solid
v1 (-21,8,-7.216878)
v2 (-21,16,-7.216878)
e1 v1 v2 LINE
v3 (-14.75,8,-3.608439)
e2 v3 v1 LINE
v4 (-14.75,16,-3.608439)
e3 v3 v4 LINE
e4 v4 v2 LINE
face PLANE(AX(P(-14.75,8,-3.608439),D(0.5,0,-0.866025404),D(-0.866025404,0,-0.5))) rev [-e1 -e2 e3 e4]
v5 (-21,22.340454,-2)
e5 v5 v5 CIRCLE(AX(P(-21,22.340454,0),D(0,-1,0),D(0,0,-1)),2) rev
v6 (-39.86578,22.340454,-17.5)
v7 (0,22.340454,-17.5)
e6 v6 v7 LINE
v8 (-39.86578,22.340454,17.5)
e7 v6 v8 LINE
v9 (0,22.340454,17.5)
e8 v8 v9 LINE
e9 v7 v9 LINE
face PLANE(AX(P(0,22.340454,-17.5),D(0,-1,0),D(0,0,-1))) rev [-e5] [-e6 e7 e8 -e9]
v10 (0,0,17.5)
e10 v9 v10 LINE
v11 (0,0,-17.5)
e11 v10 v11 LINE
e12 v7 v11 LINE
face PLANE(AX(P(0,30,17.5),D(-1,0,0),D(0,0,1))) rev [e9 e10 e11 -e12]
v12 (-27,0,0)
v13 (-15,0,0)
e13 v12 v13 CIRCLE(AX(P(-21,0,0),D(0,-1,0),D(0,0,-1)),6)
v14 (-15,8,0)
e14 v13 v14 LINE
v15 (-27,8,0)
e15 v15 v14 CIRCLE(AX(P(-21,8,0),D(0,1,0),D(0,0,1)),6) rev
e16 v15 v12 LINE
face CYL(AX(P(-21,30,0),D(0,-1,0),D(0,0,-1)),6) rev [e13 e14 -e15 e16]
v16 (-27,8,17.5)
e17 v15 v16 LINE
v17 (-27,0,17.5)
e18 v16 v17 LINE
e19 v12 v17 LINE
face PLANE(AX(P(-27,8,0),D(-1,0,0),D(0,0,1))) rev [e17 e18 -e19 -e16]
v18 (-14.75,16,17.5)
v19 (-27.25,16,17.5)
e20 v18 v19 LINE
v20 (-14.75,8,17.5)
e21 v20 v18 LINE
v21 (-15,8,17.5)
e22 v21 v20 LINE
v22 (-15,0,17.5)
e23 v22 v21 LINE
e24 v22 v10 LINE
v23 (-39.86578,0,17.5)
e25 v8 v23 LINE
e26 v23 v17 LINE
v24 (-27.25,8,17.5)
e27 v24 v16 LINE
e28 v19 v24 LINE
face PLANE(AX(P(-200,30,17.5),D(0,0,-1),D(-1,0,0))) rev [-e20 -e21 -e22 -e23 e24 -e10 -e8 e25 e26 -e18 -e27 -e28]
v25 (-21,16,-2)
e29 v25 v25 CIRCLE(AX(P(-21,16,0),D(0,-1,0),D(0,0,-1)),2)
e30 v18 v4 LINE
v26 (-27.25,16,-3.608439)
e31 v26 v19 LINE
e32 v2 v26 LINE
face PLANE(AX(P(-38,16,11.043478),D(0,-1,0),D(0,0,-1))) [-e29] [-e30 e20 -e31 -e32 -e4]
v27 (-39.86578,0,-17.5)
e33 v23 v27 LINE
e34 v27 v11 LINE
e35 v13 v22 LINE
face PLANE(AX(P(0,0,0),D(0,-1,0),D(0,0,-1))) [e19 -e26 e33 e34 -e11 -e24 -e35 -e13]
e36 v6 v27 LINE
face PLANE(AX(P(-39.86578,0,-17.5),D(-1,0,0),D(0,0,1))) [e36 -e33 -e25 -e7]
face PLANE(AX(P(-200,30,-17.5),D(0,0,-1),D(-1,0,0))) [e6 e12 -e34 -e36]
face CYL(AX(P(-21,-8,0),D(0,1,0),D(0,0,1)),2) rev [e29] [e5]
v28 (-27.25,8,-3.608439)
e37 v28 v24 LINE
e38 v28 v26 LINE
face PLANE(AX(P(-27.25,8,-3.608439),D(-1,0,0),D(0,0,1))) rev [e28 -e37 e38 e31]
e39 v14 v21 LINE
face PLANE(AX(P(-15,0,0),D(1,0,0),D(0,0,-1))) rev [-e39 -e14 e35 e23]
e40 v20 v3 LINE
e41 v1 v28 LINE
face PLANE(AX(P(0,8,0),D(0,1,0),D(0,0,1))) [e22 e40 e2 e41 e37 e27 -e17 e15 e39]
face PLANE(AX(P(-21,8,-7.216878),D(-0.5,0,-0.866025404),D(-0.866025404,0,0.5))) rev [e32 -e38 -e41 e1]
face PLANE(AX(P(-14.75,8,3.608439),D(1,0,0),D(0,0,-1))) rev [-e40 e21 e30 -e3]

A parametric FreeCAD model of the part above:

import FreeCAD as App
import Part
import Sketcher
Q = App.Units.Quantity

doc = App.newDocument("Part")
body = doc.addObject("PartDesign::Body", "Body")

# Sketch on XZ plane
sketch1 = doc.addObject("Sketcher::SketchObject", "Sketch")
body.addObject(sketch1)
sketch1.AttachmentSupport = (doc.XZ_Plane, [""])
sketch1.MapMode = "FlatFace"
sketch1.addGeometry([
    Part.LineSegment(App.Vector(-200, -18, 0), App.Vector(-200, 18, 0)),
    Part.LineSegment(App.Vector(-200, 18, 0), App.Vector(0, 18, 0)),
    Part.LineSegment(App.Vector(0, 18, 0), App.Vector(0, -18, 0)),
    Part.LineSegment(App.Vector(0, -18, 0), App.Vector(-200, -18, 0)),
], False)
sketch1.addConstraint([
    Sketcher.Constraint("Coincident", 0, 2, 1, 1),
    Sketcher.Constraint("Coincident", 1, 2, 2, 1),
    Sketcher.Constraint("Coincident", 2, 2, 3, 1),
    Sketcher.Constraint("Coincident", 3, 2, 0, 1),
    Sketcher.Constraint("Vertical", 0),
    Sketcher.Constraint("Horizontal", 1),
    Sketcher.Constraint("Vertical", 2),
    Sketcher.Constraint("Horizontal", 3),
    Sketcher.Constraint("Symmetric", 1, 2, 2, 2, -1, 1),
    Sketcher.Constraint("DistanceX", 1, 1, 1, 2, 200.0),
    Sketcher.Constraint("DistanceY", 0, 1, 0, 2, 35.0),
])
pad1 = doc.addObject("PartDesign::Pad", "Pad")
body.addObject(pad1)
pad1.Profile = sketch1
pad1.Length = 30
pad1.Reversed = True

# Sketch on XZ plane
sketch2 = doc.addObject("Sketcher::SketchObject", "Sketch001")
body.addObject(sketch2)
sketch2.AttachmentSupport = (doc.XZ_Plane, [""])
sketch2.MapMode = "FlatFace"
sketch2.addGeometry(Part.Circle(App.Vector(-21, 0, 0), App.Vector(0, 0, 1), 6), False)
sketch2.addConstraint([
    Sketcher.Constraint("PointOnObject", 0, 3, -1),
    Sketcher.Constraint("Diameter", 0, 12.0),
    Sketcher.Constraint("DistanceX", 0, 3, -1, 1, 21.0),
])
pocket1 = doc.addObject("PartDesign::Pocket", "Pocket")
body.addObject(pocket1)
pocket1.Profile = sketch2
pocket1.Type = "ThroughAll"

# Sketch on XZ plane
sketch3 = doc.addObject("Sketcher::SketchObject", "Sketch002")
body.addObject(sketch3)
sketch3.AttachmentSupport = (doc.XZ_Plane, [""])
sketch3.MapMode = "FlatFace"
sketch3.AttachmentOffset = App.Placement(App.Vector(0, 0, -30), App.Rotation())
sketch3.addGeometry([
    Part.LineSegment(App.Vector(-15, -4, 0), App.Vector(-21, -7, 0)),  # 0
    Part.LineSegment(App.Vector(-21, -7, 0), App.Vector(-27, -4, 0)),  # 1
    Part.LineSegment(App.Vector(-27, -4, 0), App.Vector(-27, 4, 0)),  # 2
    Part.LineSegment(App.Vector(-27, 4, 0), App.Vector(-21, 7, 0)),  # 3
    Part.LineSegment(App.Vector(-21, 7, 0), App.Vector(-15, 4, 0)),  # 4
    Part.LineSegment(App.Vector(-15, 4, 0), App.Vector(-15, -4, 0)),  # 5
], False)
sketch3.addConstraint([
    Sketcher.Constraint("Coincident", 0, 2, 1, 1),
    Sketcher.Constraint("Coincident", 1, 2, 2, 1),
    Sketcher.Constraint("Coincident", 2, 2, 3, 1),
    Sketcher.Constraint("Coincident", 3, 2, 4, 1),
    Sketcher.Constraint("Coincident", 4, 2, 5, 1),
    Sketcher.Constraint("Coincident", 5, 2, 0, 1),
    Sketcher.Constraint("Vertical", 2),
    Sketcher.Constraint("Vertical", 5),
    Sketcher.Constraint("Symmetric", 0, 2, 3, 2, -1),
    Sketcher.Constraint("Parallel", 0, 3),
    Sketcher.Constraint("Parallel", 1, 4),
    Sketcher.Constraint("Horizontal", 2, 2, 4, 2),
    Sketcher.Constraint("Horizontal", 1, 2, 5, 2),
    Sketcher.Constraint("Angle", 0, Q("-150 deg")),
    Sketcher.Constraint("DistanceX", 0, 2, -1, 1, 21.0),
    Sketcher.Constraint("DistanceX", 2, 2, 4, 2, 12.5),
    Sketcher.Constraint("DistanceY", 2, 1, 2, 2, 7.216878),
])
pocket2 = doc.addObject("PartDesign::Pocket", "Pocket001")
body.addObject(pocket2)
pocket2.Profile = sketch3
pocket2.Length = 22
pocket2.Reversed = True

# Sketch on YZ plane
sketch4 = doc.addObject("Sketcher::SketchObject", "Sketch003")
body.addObject(sketch4)
sketch4.AttachmentSupport = (doc.YZ_Plane, [""])
sketch4.MapMode = "FlatFace"
sketch4.addGeometry([
    Part.LineSegment(App.Vector(30, 11, 0), App.Vector(16, 11, 0)),
    Part.LineSegment(App.Vector(16, 11, 0), App.Vector(16, -11, 0)),
    Part.LineSegment(App.Vector(16, -11, 0), App.Vector(30, -11, 0)),
    Part.LineSegment(App.Vector(30, -11, 0), App.Vector(30, 11, 0)),
], False)
sketch4.addConstraint([
    Sketcher.Constraint("Coincident", 0, 2, 1, 1),
    Sketcher.Constraint("Coincident", 1, 2, 2, 1),
    Sketcher.Constraint("Coincident", 2, 2, 3, 1),
    Sketcher.Constraint("Coincident", 3, 2, 0, 1),
    Sketcher.Constraint("Horizontal", 0),
    Sketcher.Constraint("Vertical", 1),
    Sketcher.Constraint("Horizontal", 2),
    Sketcher.Constraint("Vertical", 3),
    Sketcher.Constraint("DistanceX", 0, 2, 0, 1, 14.0),
    Sketcher.Constraint("DistanceX", -1, 1, 0, 2, 16.0),
    Sketcher.Constraint("DistanceY", 1, 2, 1, 1, 22.49644),
    Sketcher.Constraint("DistanceY", -1, 1, 0, 2, 11.043478),
])
pad2 = doc.addObject("PartDesign::Pad", "Pad001")
body.addObject(pad2)
pad2.Profile = sketch4
pad2.Length = 38
pad2.Reversed = True

# Sketch on XY plane
sketch5 = doc.addObject("Sketcher::SketchObject", "Sketch004")
body.addObject(sketch5)
sketch5.AttachmentSupport = (doc.XY_Plane, [""])
sketch5.MapMode = "FlatFace"
sketch5.AttachmentOffset = App.Placement(App.Vector(0, 0, 17.5), App.Rotation())
sketch5.addGeometry([
    Part.LineSegment(App.Vector(-14.75, 16, 0), App.Vector(-27.25, 16, 0)),  # 0
    Part.LineSegment(App.Vector(-27.25, 16, 0), App.Vector(-27.25, 8, 0)),  # 1
    Part.LineSegment(App.Vector(-27.25, 8, 0), App.Vector(-27, 8, 0)),  # 2
    Part.LineSegment(App.Vector(-27, 8, 0), App.Vector(-27, 0, 0)),  # 3
    Part.LineSegment(App.Vector(-27, 0, 0), App.Vector(-15, 0, 0)),  # 4
    Part.LineSegment(App.Vector(-15, 0, 0), App.Vector(-15, 8, 0)),  # 5
    Part.LineSegment(App.Vector(-15, 8, 0), App.Vector(-14.75, 8, 0)),  # 6
    Part.LineSegment(App.Vector(-14.75, 8, 0), App.Vector(-14.75, 16, 0)),  # 7
], False)
sketch5.addConstraint([
    Sketcher.Constraint("Coincident", 0, 2, 1, 1),
    Sketcher.Constraint("Coincident", 1, 2, 2, 1),
    Sketcher.Constraint("Coincident", 2, 2, 3, 1),
    Sketcher.Constraint("Coincident", 3, 2, 4, 1),
    Sketcher.Constraint("Coincident", 4, 2, 5, 1),
    Sketcher.Constraint("Coincident", 5, 2, 6, 1),
    Sketcher.Constraint("Coincident", 6, 2, 7, 1),
    Sketcher.Constraint("Coincident", 7, 2, 0, 1),
    Sketcher.Constraint("Horizontal", 0),
    Sketcher.Constraint("Vertical", 1),
    Sketcher.Constraint("Horizontal", 2),
    Sketcher.Constraint("Vertical", 3),
    Sketcher.Constraint("Horizontal", 4),
    Sketcher.Constraint("Vertical", 5),
    Sketcher.Constraint("Horizontal", 6),
    Sketcher.Constraint("Vertical", 7),
    Sketcher.Constraint("PointOnObject", 3, 2, -1),
    Sketcher.Constraint("Horizontal", 2, 2, 5, 2),
    Sketcher.Constraint("Equal", 2, 6),
    Sketcher.Constraint("Equal", 1, 3),
    Sketcher.Constraint("DistanceX", 4, 1, 4, 2, 12.0),
    Sketcher.Constraint("DistanceY", 1, 2, 1, 1, 8.0),
    Sketcher.Constraint("DistanceX", 0, 2, 0, 1, 12.5),
    Sketcher.Constraint("DistanceX", 2, 2, -1, 1, 27.0),
])
pocket3 = doc.addObject("PartDesign::Pocket", "Pocket002")
body.addObject(pocket3)
pocket3.Profile = sketch5
pocket3.Length = 17.5

# Sketch on XZ plane
sketch6 = doc.addObject("Sketcher::SketchObject", "Sketch005")
body.addObject(sketch6)
sketch6.AttachmentSupport = (doc.XZ_Plane, [""])
sketch6.MapMode = "FlatFace"
sketch6.AttachmentOffset = App.Placement(App.Vector(0, 0, -30), App.Rotation())
sketch6.addGeometry(Part.Circle(App.Vector(-21, 0, 0), App.Vector(0, 0, 1), 2), False)
sketch6.addConstraint([
    Sketcher.Constraint("PointOnObject", 0, 3, -1),
    Sketcher.Constraint("Diameter", 0, 4.0),
    Sketcher.Constraint("DistanceX", 0, 3, -1, 1, 21.0),
])
pocket4 = doc.addObject("PartDesign::Pocket", "Pocket003")
body.addObject(pocket4)
pocket4.Profile = sketch6
pocket4.Length = 38
pocket4.Reversed = True

# Sketch on YZ plane
sketch7 = doc.addObject("Sketcher::SketchObject", "Sketch006")
body.addObject(sketch7)
sketch7.AttachmentSupport = (doc.YZ_Plane, [""])
sketch7.MapMode = "FlatFace"
sketch7.AttachmentOffset = App.Placement(App.Vector(0, 0, -200), App.Rotation())
sketch7.addGeometry([
    Part.Circle(App.Vector(21.5, 6.5, 0), App.Vector(0, 0, 1), 2.2),
    Part.Circle(App.Vector(8.5, 6.5, 0), App.Vector(0, 0, 1), 2.2),
    Part.Circle(App.Vector(8.5, -6.5, 0), App.Vector(0, 0, 1), 2.2),
    Part.Circle(App.Vector(21.5, -6.5, 0), App.Vector(0, 0, 1), 2.2),
], False)
sketch7.addConstraint([
    Sketcher.Constraint("Equal", 0, 1),
    Sketcher.Constraint("Equal", 1, 2),
    Sketcher.Constraint("Equal", 2, 3),
    Sketcher.Constraint("Symmetric", 1, 3, 2, 3, -1),
    Sketcher.Constraint("Symmetric", 0, 3, 3, 3, -1),
    Sketcher.Constraint("Horizontal", 0, 3, 1, 3),
    Sketcher.Constraint("Diameter", 0, 4.5),
    Sketcher.Constraint("DistanceX", 1, 3, 0, 3, 13.0),
    Sketcher.Constraint("DistanceY", 2, 3, 1, 3, 13.0),
    Sketcher.Constraint("DistanceX", -1, 1, 0, 3, 21.5),
])
pocket5 = doc.addObject("PartDesign::Pocket", "Pocket004")
body.addObject(pocket5)
pocket5.Profile = sketch7
pocket5.Length = 20
pocket5.Reversed = True

# Sketch on XZ plane
sketch8 = doc.addObject("Sketcher::SketchObject", "Sketch007")
body.addObject(sketch8)
sketch8.AttachmentSupport = (doc.XZ_Plane, [""])
sketch8.MapMode = "FlatFace"
sketch8.AttachmentOffset = App.Placement(App.Vector(0, 0, -30), App.Rotation())
sketch8.addGeometry([
    Part.LineSegment(App.Vector(-194, 2.8, 0), App.Vector(-194, 10.3, 0)),  # 0
    Part.LineSegment(App.Vector(-194, 10.3, 0), App.Vector(-189.5, 10.3, 0)),  # 1
    Part.LineSegment(App.Vector(-189.5, 10.3, 0), App.Vector(-189.5, 2.8, 0)),  # 2
    Part.LineSegment(App.Vector(-189.5, 2.8, 0), App.Vector(-194, 2.8, 0)),  # 3
    Part.LineSegment(App.Vector(-194, -10.3, 0), App.Vector(-194, -2.8, 0)),  # 4
    Part.LineSegment(App.Vector(-194, -2.8, 0), App.Vector(-189.5, -2.8, 0)),  # 5
    Part.LineSegment(App.Vector(-189.5, -2.8, 0), App.Vector(-189.5, -10.3, 0)),  # 6
    Part.LineSegment(App.Vector(-189.5, -10.3, 0), App.Vector(-194, -10.3, 0)),  # 7
], False)
sketch8.addConstraint([
    Sketcher.Constraint("Coincident", 0, 2, 1, 1),
    Sketcher.Constraint("Coincident", 1, 2, 2, 1),
    Sketcher.Constraint("Coincident", 2, 2, 3, 1),
    Sketcher.Constraint("Coincident", 3, 2, 0, 1),
    Sketcher.Constraint("Coincident", 4, 2, 5, 1),
    Sketcher.Constraint("Coincident", 5, 2, 6, 1),
    Sketcher.Constraint("Coincident", 6, 2, 7, 1),
    Sketcher.Constraint("Coincident", 7, 2, 4, 1),
    Sketcher.Constraint("Vertical", 0),
    Sketcher.Constraint("Horizontal", 1),
    Sketcher.Constraint("Vertical", 2),
    Sketcher.Constraint("Horizontal", 3),
    Sketcher.Constraint("Vertical", 4),
    Sketcher.Constraint("Horizontal", 5),
    Sketcher.Constraint("Vertical", 6),
    Sketcher.Constraint("Horizontal", 7),
    Sketcher.Constraint("Symmetric", 3, 2, 4, 2, -1),
    Sketcher.Constraint("Symmetric", 1, 2, 6, 2, -1),
    Sketcher.Constraint("DistanceX", 1, 1, 1, 2, 4.5),
    Sketcher.Constraint("DistanceY", 0, 1, 0, 2, 7.5),
    Sketcher.Constraint("DistanceX", 0, 2, -1, 1, 194.0),
    Sketcher.Constraint("DistanceY", 4, 2, 3, 2, 5.625),
])
pocket6 = doc.addObject("PartDesign::Pocket", "Pocket005")
body.addObject(pocket6)
pocket6.Profile = sketch8
pocket6.Length = 46
pocket6.Reversed = True

# Sketch on XY plane
sketch9 = doc.addObject("Sketcher::SketchObject", "Sketch008")
body.addObject(sketch9)
sketch9.AttachmentSupport = (doc.XY_Plane, [""])
sketch9.MapMode = "FlatFace"
sketch9.AttachmentOffset = App.Placement(App.Vector(0, 0, 17.5), App.Rotation())
sketch9.addGeometry([
    Part.LineSegment(App.Vector(-218, 72, 0), App.Vector(-218, -72, 0)),  # 0
    Part.LineSegment(App.Vector(-218, -72, 0), App.Vector(188, -72, 0)),  # 1
    Part.LineSegment(App.Vector(188, -72, 0), App.Vector(188, 72, 0)),  # 2
    Part.LineSegment(App.Vector(188, 72, 0), App.Vector(-218, 72, 0)),  # 3
    Part.LineSegment(App.Vector(-40, -16, 0), App.Vector(-40, 22, 0)),  # 4
    Part.LineSegment(App.Vector(-40, 22, 0), App.Vector(10, 22, 0)),  # 5
    Part.LineSegment(App.Vector(10, 22, 0), App.Vector(10, -16, 0)),  # 6
    Part.LineSegment(App.Vector(10, -16, 0), App.Vector(-40, -16, 0)),  # 7
], False)
sketch9.addConstraint([
    Sketcher.Constraint("Coincident", 0, 2, 1, 1),
    Sketcher.Constraint("Coincident", 1, 2, 2, 1),
    Sketcher.Constraint("Coincident", 2, 2, 3, 1),
    Sketcher.Constraint("Coincident", 3, 2, 0, 1),
    Sketcher.Constraint("Coincident", 4, 2, 5, 1),
    Sketcher.Constraint("Coincident", 5, 2, 6, 1),
    Sketcher.Constraint("Coincident", 6, 2, 7, 1),
    Sketcher.Constraint("Coincident", 7, 2, 4, 1),
    Sketcher.Constraint("Vertical", 0),
    Sketcher.Constraint("Horizontal", 1),
    Sketcher.Constraint("Vertical", 2),
    Sketcher.Constraint("Horizontal", 3),
    Sketcher.Constraint("Vertical", 4),
    Sketcher.Constraint("Horizontal", 5),
    Sketcher.Constraint("Vertical", 6),
    Sketcher.Constraint("Horizontal", 7),
    Sketcher.Constraint("DistanceX", 1, 1, 1, 2, 405.367487),
    Sketcher.Constraint("DistanceX", 5, 1, 5, 2, 49.392548),
    Sketcher.Constraint("DistanceY", 0, 2, 0, 1, 144.136743),
    Sketcher.Constraint("DistanceY", 4, 1, 4, 2, 37.872034),
    Sketcher.Constraint("DistanceY", 0, 2, -1, 1, 72.068372),
    Sketcher.Constraint("DistanceX", 4, 2, -1, 1, 39.86578),
    Sketcher.Constraint("DistanceY", 6, 2, -1, 1, 15.53158),
    Sketcher.Constraint("DistanceX", 3, 2, 5, 2, 227.210511),
])
pocket7 = doc.addObject("PartDesign::Pocket", "Pocket006")
body.addObject(pocket7)
pocket7.Profile = sketch9
pocket7.Length = 206.243758

doc.recompute()
